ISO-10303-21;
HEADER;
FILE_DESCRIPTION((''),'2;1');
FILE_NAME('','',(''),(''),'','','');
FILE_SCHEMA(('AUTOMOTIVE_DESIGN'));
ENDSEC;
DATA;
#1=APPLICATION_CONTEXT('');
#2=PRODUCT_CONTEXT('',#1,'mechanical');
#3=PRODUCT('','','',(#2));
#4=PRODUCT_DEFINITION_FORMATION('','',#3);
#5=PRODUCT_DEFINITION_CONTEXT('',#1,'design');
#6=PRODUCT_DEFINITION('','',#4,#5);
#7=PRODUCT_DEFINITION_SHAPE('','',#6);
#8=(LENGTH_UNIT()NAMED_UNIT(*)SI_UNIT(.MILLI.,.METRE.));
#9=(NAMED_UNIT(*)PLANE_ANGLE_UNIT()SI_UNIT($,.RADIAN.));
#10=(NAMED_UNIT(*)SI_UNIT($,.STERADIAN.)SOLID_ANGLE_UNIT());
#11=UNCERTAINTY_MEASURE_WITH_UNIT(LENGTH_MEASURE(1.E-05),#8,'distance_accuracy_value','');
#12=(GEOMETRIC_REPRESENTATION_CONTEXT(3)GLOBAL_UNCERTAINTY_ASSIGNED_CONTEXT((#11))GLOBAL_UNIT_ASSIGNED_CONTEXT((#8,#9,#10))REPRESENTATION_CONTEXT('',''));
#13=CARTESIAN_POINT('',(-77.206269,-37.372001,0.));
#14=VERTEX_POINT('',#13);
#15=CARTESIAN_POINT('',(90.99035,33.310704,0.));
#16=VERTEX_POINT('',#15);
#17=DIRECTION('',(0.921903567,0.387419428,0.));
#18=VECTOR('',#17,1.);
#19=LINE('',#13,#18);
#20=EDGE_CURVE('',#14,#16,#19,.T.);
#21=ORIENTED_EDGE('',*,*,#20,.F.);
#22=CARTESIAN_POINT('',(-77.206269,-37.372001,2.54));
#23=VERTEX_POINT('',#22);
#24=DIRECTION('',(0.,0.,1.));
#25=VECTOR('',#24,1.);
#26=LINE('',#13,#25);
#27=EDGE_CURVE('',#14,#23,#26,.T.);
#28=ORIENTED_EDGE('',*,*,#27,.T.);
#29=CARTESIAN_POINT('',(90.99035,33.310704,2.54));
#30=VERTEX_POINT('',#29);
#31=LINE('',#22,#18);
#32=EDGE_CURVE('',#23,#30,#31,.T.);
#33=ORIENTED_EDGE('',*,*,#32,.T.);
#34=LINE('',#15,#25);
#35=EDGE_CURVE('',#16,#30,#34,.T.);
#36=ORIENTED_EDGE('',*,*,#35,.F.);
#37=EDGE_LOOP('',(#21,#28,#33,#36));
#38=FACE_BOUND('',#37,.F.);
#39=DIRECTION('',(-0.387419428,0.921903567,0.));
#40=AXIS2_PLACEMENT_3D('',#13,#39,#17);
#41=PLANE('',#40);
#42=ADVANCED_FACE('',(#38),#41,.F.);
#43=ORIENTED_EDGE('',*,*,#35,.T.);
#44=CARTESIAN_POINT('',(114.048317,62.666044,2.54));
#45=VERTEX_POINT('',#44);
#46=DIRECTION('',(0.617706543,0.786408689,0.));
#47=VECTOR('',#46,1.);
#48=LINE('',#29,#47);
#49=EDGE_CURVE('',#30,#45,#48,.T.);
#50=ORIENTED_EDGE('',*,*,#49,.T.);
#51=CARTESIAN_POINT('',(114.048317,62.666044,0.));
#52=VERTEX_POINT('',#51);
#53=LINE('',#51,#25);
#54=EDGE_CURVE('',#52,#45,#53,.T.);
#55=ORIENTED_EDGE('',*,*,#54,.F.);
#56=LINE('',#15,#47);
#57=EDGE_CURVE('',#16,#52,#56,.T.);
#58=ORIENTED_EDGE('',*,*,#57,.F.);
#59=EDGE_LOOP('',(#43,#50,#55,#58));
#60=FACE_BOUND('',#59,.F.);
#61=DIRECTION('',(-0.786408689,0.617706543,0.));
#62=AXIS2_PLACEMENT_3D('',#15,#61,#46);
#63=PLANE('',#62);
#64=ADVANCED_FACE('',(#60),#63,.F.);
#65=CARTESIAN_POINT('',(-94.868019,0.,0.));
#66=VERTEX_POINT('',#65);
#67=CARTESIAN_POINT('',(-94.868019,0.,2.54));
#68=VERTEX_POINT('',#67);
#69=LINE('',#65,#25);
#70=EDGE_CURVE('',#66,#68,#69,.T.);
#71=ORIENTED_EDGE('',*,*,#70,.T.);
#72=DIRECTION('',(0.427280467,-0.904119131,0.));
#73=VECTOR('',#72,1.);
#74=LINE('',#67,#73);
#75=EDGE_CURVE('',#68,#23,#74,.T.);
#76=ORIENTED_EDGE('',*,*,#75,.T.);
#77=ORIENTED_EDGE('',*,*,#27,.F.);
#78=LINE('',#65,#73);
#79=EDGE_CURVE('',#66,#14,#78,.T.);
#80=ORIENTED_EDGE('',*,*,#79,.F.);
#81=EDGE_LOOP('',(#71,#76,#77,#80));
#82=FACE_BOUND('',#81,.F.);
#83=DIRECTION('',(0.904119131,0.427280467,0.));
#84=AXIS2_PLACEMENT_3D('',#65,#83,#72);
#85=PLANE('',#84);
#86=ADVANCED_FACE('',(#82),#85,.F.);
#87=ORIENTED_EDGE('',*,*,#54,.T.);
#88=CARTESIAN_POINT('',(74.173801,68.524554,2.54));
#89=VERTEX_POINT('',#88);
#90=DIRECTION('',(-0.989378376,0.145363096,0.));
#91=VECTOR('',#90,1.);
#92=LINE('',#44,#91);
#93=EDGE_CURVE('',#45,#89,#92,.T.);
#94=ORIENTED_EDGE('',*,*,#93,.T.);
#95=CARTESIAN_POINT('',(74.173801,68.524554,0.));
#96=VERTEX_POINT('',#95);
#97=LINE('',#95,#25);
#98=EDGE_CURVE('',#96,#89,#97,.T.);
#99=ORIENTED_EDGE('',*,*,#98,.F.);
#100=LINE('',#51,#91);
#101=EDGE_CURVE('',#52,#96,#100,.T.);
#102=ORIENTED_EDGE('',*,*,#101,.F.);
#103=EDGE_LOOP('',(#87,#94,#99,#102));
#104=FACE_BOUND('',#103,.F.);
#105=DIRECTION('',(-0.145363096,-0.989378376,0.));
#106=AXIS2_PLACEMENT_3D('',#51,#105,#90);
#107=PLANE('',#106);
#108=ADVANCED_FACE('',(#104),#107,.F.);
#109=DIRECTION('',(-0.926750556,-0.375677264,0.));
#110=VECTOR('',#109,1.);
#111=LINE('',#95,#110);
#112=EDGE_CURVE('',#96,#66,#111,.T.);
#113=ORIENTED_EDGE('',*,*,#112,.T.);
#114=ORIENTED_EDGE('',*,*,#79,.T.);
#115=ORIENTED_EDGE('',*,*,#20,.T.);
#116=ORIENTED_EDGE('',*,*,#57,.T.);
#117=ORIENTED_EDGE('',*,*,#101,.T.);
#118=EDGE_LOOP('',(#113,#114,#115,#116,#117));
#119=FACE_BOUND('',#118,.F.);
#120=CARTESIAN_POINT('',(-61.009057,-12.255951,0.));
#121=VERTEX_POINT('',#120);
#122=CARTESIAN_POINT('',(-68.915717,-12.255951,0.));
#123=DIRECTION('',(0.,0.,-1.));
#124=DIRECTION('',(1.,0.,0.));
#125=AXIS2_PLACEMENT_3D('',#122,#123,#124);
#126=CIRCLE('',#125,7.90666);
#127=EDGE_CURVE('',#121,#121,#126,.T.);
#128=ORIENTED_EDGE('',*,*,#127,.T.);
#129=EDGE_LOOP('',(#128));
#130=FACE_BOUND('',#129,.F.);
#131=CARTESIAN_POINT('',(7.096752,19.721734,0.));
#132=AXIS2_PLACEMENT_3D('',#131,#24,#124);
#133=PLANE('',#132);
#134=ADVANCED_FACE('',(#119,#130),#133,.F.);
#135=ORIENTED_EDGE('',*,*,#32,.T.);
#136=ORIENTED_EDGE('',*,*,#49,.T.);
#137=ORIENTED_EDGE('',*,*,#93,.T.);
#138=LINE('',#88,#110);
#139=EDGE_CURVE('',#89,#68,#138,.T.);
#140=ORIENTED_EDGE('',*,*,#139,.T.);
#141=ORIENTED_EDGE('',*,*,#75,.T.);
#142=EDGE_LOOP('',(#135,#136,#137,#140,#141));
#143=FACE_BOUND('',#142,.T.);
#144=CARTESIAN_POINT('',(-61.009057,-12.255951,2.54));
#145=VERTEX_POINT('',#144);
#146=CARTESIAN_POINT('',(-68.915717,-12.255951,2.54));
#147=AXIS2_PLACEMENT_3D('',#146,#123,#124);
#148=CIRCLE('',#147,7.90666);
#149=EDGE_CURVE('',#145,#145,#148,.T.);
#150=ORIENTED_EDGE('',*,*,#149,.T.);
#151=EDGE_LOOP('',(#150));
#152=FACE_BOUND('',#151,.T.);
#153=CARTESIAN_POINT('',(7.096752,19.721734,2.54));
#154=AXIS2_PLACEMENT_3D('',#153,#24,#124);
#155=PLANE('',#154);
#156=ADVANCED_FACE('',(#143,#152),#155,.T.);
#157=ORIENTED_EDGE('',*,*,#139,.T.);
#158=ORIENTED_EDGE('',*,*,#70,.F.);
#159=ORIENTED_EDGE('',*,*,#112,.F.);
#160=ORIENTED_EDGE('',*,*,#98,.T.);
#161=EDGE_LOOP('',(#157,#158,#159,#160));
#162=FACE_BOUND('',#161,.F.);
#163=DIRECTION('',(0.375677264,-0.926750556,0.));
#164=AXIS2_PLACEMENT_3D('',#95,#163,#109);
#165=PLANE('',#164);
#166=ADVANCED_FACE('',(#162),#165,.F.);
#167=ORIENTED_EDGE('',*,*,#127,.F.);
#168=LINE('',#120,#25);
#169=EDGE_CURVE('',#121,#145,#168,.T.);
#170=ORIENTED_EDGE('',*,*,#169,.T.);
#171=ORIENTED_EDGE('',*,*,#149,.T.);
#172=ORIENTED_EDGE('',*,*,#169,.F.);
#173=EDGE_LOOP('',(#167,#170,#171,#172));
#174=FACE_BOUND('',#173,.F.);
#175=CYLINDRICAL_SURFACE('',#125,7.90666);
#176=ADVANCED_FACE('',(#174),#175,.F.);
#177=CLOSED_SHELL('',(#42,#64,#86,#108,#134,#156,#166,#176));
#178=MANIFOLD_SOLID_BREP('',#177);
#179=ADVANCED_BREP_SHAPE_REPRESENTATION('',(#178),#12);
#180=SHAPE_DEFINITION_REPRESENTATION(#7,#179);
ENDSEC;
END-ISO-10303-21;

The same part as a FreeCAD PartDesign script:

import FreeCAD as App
import Part
import Sketcher

V = App.Vector
Q = App.Units.Quantity

doc = App.newDocument("Part")
params = doc.addObject("Spreadsheet::Sheet", "Params")
for row, (alias, value) in enumerate([
    ("pad1_length", "0.1 in"),
    ("pocket1_length", "7.3 in"),
], start=1):
    params.set(f"A{row}", alias)
    params.set(f"B{row}", "=" + value)
    params.setAlias(f"B{row}", alias)

body = doc.addObject("PartDesign::Body", "Body")

# Sketch on XY plane
sketch1 = body.newObject("Sketcher::SketchObject", "Sketch")
sketch1.AttachmentSupport = (doc.getObject("XY_Plane"), [""])
sketch1.MapMode = "FlatFace"
sketch1.addGeometry(Part.LineSegment(V(-94.868019, 0, 0), V(-77.206269, -37.372001, 0)), False)
sketch1.addGeometry(Part.LineSegment(V(-77.206269, -37.372001, 0), V(90.99035, 33.310704, 0)), False)
sketch1.addGeometry(Part.LineSegment(V(90.99035, 33.310704, 0), V(114.048317, 62.666044, 0)), False)
sketch1.addGeometry(Part.LineSegment(V(114.048317, 62.666044, 0), V(74.173801, 68.524554, 0)), False)
sketch1.addGeometry(Part.LineSegment(V(74.173801, 68.524554, 0), V(-94.868019, 0, 0)), False)
sketch1.addConstraint(Sketcher.Constraint("Coincident", 0, 2, 1, 1))
sketch1.addConstraint(Sketcher.Constraint("Coincident", 1, 2, 2, 1))
sketch1.addConstraint(Sketcher.Constraint("Coincident", 2, 2, 3, 1))
sketch1.addConstraint(Sketcher.Constraint("Coincident", 3, 2, 4, 1))
sketch1.addConstraint(Sketcher.Constraint("Coincident", 4, 2, 0, 1))
sketch1.addConstraint(Sketcher.Constraint("PointOnObject", 4, 2, -1))
sketch1.addConstraint(Sketcher.Constraint("DistanceY", 0, 2, -1, 1, Q("37.372001 mm")))
sketch1.addConstraint(Sketcher.Constraint("DistanceX", -1, 1, 3, 2, Q("74.173801 mm")))
sketch1.addConstraint(Sketcher.Constraint("Distance", 0, Q("41.335262 mm")))
sketch1.addConstraint(Sketcher.Constraint("Distance", 2, Q("37.328352 mm")))
sketch1.addConstraint(Sketcher.Constraint("DistanceX", 0, 2, -1, 1, Q("77.206269 mm")))
sketch1.addConstraint(Sketcher.Constraint("DistanceX", -1, 1, 1, 2, Q("90.99035 mm")))
sketch1.addConstraint(Sketcher.Constraint("DistanceY", 1, 2, 2, 2, Q("29.35534 mm")))
sketch1.addConstraint(Sketcher.Constraint("DistanceY", 1, 2, 3, 2, Q("35.21385 mm")))
sketch1.addConstraint(Sketcher.Constraint("Distance", 1, Q("182.444916 mm")))
pad1 = body.newObject("PartDesign::Pad", "Pad")
pad1.Profile = sketch1
pad1.setExpression("Length", "Params.pad1_length")

# Sketch on XY plane
sketch2 = body.newObject("Sketcher::SketchObject", "Sketch001")
sketch2.AttachmentSupport = (doc.getObject("XY_Plane"), [""])
sketch2.MapMode = "FlatFace"
sketch2.addGeometry(Part.Circle(V(-68.915717, -12.255951, 0), V(0, 0, 1), 7.90666), False)
sketch2.addConstraint(Sketcher.Constraint("Diameter", 0, Q("15.81332 mm")))
sketch2.addConstraint(Sketcher.Constraint("DistanceY", 0, 3, -1, 1, Q("12.255951 mm")))
sketch2.addConstraint(Sketcher.Constraint("DistanceX", 0, 3, -1, 1, Q("68.915717 mm")))
pocket1 = body.newObject("PartDesign::Pocket", "Pocket")
pocket1.Profile = sketch2
pocket1.setExpression("Length", "Params.pocket1_length")
pocket1.Reversed = True

doc.recompute()
